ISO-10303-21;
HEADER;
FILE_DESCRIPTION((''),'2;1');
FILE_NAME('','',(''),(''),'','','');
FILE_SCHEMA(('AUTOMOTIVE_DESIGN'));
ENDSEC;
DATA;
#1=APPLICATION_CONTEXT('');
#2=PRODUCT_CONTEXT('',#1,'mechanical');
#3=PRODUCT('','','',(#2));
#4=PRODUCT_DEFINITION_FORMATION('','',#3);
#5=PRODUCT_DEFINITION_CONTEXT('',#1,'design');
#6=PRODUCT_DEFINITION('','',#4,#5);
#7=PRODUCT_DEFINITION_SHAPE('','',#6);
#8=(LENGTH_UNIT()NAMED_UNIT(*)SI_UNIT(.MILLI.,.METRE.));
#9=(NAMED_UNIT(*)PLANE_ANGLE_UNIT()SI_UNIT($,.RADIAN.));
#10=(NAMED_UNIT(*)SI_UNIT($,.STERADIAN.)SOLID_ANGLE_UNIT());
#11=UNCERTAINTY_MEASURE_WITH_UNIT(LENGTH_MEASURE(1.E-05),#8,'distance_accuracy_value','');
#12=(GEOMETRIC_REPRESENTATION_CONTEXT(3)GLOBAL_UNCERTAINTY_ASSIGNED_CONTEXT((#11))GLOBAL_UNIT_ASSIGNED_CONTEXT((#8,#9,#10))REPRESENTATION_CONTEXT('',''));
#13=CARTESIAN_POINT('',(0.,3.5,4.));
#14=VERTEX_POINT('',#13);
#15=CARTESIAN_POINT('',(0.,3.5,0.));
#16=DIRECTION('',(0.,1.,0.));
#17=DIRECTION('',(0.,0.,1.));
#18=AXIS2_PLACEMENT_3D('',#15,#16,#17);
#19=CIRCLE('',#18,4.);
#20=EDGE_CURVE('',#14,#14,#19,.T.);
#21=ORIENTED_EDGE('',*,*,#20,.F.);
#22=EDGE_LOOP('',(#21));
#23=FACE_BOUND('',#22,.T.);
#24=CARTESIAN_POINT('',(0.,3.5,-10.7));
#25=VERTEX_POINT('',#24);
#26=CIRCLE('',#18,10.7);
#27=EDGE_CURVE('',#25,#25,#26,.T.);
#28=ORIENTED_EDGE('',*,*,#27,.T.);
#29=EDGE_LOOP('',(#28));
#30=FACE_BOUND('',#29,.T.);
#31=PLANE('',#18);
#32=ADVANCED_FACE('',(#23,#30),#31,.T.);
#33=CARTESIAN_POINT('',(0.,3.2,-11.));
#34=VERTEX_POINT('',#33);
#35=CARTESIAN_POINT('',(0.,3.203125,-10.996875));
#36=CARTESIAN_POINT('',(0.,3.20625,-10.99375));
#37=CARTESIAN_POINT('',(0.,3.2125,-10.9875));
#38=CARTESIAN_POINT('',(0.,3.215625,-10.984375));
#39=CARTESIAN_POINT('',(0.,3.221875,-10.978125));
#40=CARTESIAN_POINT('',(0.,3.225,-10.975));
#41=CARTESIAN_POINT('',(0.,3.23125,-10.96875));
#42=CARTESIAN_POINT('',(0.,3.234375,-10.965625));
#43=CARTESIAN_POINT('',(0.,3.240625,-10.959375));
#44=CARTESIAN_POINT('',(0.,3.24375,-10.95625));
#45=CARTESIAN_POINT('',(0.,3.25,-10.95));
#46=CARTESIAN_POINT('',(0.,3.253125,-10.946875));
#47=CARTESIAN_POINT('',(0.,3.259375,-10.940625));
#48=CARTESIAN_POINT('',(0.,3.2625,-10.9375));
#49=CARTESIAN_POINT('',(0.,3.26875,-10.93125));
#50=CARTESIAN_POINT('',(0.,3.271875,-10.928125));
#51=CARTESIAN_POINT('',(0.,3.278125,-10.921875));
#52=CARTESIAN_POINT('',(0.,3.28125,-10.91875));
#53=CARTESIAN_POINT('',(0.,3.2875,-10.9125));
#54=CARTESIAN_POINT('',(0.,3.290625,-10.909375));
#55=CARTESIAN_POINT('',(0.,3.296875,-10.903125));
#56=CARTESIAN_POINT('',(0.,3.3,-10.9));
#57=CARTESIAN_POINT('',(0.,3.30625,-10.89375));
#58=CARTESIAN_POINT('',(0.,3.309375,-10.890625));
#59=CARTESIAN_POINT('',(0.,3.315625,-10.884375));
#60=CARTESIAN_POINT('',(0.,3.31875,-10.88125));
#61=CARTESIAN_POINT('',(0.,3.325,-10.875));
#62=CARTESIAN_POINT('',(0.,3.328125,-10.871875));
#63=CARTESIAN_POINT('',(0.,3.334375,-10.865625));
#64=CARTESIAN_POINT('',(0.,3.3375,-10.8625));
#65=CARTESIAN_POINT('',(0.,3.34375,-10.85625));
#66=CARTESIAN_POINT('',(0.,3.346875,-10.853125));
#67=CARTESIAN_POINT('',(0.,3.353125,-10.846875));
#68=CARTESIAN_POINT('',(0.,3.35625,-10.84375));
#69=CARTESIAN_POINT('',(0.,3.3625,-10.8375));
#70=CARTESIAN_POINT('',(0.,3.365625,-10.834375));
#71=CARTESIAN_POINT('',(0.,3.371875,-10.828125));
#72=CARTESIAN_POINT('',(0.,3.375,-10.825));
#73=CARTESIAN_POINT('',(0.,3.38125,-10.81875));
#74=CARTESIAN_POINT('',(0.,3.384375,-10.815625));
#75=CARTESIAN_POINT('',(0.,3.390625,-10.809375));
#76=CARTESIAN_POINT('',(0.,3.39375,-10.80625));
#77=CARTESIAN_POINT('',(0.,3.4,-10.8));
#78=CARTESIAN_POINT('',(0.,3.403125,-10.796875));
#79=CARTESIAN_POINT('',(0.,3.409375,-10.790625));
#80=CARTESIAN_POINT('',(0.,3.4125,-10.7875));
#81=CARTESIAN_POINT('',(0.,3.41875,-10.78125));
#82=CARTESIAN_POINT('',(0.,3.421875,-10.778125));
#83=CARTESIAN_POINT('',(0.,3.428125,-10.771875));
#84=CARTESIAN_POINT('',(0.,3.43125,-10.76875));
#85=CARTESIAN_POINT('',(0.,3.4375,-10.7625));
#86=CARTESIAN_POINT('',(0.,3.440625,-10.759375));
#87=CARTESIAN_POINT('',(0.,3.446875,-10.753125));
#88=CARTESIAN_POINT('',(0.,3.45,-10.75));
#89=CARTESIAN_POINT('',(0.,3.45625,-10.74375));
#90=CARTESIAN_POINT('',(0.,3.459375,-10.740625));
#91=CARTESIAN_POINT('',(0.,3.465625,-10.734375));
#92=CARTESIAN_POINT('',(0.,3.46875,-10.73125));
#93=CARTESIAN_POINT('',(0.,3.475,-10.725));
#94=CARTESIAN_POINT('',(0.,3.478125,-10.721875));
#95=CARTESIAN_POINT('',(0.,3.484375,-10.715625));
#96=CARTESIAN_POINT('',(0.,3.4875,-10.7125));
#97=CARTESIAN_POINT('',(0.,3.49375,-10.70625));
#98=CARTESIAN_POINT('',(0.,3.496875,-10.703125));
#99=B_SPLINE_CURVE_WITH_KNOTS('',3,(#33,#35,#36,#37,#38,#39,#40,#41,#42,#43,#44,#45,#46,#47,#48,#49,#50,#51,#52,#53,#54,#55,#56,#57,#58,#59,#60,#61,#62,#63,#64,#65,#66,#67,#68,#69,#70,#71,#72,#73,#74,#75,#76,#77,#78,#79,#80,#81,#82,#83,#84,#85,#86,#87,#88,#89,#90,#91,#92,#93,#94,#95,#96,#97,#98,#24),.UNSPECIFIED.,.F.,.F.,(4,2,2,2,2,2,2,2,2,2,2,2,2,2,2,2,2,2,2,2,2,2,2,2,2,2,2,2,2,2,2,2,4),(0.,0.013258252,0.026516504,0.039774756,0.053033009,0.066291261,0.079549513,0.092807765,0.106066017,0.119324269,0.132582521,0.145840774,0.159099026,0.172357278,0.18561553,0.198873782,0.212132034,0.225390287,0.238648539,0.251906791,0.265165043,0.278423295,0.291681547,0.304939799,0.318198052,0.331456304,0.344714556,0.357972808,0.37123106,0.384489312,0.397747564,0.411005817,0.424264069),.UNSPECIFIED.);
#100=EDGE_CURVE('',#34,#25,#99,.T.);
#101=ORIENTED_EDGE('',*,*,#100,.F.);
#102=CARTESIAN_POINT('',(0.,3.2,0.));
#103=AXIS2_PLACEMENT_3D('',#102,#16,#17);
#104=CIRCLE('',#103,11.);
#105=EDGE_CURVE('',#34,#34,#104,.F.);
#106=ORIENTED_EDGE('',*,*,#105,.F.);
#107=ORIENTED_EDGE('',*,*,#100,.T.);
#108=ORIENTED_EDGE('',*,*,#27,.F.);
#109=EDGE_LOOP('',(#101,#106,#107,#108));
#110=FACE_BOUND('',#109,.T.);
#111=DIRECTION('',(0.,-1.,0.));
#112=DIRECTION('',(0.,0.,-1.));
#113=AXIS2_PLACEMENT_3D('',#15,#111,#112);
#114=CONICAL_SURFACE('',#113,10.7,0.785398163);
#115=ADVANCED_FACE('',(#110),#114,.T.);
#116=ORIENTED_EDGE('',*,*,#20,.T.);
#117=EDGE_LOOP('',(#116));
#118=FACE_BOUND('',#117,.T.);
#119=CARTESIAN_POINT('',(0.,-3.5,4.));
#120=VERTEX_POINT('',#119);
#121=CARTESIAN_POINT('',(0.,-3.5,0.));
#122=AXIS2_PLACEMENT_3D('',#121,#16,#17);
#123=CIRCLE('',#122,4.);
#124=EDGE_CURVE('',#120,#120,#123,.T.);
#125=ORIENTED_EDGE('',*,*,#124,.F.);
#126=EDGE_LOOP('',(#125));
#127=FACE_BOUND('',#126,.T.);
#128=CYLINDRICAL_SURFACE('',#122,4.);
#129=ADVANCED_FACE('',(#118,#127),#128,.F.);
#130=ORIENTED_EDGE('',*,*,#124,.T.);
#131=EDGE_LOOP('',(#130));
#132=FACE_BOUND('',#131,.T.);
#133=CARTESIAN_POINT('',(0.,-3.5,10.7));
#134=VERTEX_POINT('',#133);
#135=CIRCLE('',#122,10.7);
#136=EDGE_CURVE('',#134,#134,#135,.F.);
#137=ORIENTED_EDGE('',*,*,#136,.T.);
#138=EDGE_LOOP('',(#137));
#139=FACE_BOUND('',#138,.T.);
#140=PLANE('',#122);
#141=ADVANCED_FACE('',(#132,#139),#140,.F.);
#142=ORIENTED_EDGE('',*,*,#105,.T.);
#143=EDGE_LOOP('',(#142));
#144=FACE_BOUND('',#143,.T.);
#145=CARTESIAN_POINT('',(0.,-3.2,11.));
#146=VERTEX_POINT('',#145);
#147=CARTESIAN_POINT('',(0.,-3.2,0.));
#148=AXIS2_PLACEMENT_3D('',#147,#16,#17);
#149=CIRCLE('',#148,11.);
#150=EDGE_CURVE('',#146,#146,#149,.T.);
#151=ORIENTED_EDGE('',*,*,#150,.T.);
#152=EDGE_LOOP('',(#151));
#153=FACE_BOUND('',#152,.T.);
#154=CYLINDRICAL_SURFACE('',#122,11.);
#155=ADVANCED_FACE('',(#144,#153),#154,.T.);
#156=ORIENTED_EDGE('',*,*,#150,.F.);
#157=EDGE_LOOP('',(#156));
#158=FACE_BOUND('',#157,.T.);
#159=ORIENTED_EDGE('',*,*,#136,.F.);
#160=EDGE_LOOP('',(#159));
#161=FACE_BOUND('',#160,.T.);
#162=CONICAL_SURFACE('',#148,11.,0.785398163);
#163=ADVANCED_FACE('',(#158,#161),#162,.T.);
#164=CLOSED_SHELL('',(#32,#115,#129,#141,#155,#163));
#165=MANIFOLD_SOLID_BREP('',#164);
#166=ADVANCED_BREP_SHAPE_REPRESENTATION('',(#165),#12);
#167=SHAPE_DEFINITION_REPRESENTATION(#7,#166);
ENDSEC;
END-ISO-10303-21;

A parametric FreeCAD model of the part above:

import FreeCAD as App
import Part
import Sketcher
from FreeCAD import Vector


def edges_at(feature, points):
    """Names of the edges that pass closest to the given points."""
    edges = feature.Shape.Edges
    near = lambda p: min(range(len(edges)), key=lambda i: edges[i].distToShape(Part.Vertex(*p))[0])
    return sorted({f"Edge{near(p) + 1}" for p in points})

doc = App.newDocument("Part")
params = doc.addObject("Spreadsheet::Sheet", "Params")
for row, (alias, value) in enumerate([
    ("sketch1_diameter", "22 mm"),
    ("sketch1_diameter2", "8 mm"),
    ("pad1_length", "3.5 mm"),
    ("pad1_length2", "3.5 mm"),
    ("chamfer_size", "0.3 mm"),
], start=1):
    params.set(f"A{row}", alias)
    params.set(f"B{row}", "=" + value)
    params.setAlias(f"B{row}", alias)

body = doc.addObject("PartDesign::Body", "Body")

sketch1 = body.newObject("Sketcher::SketchObject", "Sketch")
sketch1.AttachmentSupport = (doc.getObject("XZ_Plane"), [""])
sketch1.MapMode = "FlatFace"
sketch1.addGeometry([
    Part.Circle(Vector(0, 0, 0), Vector(0, 0, 1), 11),
    Part.Circle(Vector(0, 0, 0), Vector(0, 0, 1), 4),
], False)
sketch1.addConstraint([
    Sketcher.Constraint("Coincident", 0, 3, -1, 1),
    Sketcher.Constraint("Coincident", 1, 3, -1, 1),
    Sketcher.Constraint("Diameter", 0, 22.0),
    Sketcher.Constraint("Diameter", 1, 8.0),
])
sketch1.setExpression("Constraints[2]", "Params.sketch1_diameter")
sketch1.setExpression("Constraints[3]", "Params.sketch1_diameter2")
pad1 = body.newObject("PartDesign::Pad", "Pad")
pad1.Profile = sketch1
pad1.Type = "TwoLengths"
pad1.setExpression("Length", "Params.pad1_length")
pad1.setExpression("Length2", "Params.pad1_length2")
pad1.Reversed = True
doc.recompute()

chamfer = body.newObject("PartDesign::Chamfer", "Chamfer")
chamfer.Base = (pad1, edges_at(pad1, [(0, -3.5, -11), (0, 3.5, -11)]))
chamfer.setExpression("Size", "Params.chamfer_size")

doc.recompute()
